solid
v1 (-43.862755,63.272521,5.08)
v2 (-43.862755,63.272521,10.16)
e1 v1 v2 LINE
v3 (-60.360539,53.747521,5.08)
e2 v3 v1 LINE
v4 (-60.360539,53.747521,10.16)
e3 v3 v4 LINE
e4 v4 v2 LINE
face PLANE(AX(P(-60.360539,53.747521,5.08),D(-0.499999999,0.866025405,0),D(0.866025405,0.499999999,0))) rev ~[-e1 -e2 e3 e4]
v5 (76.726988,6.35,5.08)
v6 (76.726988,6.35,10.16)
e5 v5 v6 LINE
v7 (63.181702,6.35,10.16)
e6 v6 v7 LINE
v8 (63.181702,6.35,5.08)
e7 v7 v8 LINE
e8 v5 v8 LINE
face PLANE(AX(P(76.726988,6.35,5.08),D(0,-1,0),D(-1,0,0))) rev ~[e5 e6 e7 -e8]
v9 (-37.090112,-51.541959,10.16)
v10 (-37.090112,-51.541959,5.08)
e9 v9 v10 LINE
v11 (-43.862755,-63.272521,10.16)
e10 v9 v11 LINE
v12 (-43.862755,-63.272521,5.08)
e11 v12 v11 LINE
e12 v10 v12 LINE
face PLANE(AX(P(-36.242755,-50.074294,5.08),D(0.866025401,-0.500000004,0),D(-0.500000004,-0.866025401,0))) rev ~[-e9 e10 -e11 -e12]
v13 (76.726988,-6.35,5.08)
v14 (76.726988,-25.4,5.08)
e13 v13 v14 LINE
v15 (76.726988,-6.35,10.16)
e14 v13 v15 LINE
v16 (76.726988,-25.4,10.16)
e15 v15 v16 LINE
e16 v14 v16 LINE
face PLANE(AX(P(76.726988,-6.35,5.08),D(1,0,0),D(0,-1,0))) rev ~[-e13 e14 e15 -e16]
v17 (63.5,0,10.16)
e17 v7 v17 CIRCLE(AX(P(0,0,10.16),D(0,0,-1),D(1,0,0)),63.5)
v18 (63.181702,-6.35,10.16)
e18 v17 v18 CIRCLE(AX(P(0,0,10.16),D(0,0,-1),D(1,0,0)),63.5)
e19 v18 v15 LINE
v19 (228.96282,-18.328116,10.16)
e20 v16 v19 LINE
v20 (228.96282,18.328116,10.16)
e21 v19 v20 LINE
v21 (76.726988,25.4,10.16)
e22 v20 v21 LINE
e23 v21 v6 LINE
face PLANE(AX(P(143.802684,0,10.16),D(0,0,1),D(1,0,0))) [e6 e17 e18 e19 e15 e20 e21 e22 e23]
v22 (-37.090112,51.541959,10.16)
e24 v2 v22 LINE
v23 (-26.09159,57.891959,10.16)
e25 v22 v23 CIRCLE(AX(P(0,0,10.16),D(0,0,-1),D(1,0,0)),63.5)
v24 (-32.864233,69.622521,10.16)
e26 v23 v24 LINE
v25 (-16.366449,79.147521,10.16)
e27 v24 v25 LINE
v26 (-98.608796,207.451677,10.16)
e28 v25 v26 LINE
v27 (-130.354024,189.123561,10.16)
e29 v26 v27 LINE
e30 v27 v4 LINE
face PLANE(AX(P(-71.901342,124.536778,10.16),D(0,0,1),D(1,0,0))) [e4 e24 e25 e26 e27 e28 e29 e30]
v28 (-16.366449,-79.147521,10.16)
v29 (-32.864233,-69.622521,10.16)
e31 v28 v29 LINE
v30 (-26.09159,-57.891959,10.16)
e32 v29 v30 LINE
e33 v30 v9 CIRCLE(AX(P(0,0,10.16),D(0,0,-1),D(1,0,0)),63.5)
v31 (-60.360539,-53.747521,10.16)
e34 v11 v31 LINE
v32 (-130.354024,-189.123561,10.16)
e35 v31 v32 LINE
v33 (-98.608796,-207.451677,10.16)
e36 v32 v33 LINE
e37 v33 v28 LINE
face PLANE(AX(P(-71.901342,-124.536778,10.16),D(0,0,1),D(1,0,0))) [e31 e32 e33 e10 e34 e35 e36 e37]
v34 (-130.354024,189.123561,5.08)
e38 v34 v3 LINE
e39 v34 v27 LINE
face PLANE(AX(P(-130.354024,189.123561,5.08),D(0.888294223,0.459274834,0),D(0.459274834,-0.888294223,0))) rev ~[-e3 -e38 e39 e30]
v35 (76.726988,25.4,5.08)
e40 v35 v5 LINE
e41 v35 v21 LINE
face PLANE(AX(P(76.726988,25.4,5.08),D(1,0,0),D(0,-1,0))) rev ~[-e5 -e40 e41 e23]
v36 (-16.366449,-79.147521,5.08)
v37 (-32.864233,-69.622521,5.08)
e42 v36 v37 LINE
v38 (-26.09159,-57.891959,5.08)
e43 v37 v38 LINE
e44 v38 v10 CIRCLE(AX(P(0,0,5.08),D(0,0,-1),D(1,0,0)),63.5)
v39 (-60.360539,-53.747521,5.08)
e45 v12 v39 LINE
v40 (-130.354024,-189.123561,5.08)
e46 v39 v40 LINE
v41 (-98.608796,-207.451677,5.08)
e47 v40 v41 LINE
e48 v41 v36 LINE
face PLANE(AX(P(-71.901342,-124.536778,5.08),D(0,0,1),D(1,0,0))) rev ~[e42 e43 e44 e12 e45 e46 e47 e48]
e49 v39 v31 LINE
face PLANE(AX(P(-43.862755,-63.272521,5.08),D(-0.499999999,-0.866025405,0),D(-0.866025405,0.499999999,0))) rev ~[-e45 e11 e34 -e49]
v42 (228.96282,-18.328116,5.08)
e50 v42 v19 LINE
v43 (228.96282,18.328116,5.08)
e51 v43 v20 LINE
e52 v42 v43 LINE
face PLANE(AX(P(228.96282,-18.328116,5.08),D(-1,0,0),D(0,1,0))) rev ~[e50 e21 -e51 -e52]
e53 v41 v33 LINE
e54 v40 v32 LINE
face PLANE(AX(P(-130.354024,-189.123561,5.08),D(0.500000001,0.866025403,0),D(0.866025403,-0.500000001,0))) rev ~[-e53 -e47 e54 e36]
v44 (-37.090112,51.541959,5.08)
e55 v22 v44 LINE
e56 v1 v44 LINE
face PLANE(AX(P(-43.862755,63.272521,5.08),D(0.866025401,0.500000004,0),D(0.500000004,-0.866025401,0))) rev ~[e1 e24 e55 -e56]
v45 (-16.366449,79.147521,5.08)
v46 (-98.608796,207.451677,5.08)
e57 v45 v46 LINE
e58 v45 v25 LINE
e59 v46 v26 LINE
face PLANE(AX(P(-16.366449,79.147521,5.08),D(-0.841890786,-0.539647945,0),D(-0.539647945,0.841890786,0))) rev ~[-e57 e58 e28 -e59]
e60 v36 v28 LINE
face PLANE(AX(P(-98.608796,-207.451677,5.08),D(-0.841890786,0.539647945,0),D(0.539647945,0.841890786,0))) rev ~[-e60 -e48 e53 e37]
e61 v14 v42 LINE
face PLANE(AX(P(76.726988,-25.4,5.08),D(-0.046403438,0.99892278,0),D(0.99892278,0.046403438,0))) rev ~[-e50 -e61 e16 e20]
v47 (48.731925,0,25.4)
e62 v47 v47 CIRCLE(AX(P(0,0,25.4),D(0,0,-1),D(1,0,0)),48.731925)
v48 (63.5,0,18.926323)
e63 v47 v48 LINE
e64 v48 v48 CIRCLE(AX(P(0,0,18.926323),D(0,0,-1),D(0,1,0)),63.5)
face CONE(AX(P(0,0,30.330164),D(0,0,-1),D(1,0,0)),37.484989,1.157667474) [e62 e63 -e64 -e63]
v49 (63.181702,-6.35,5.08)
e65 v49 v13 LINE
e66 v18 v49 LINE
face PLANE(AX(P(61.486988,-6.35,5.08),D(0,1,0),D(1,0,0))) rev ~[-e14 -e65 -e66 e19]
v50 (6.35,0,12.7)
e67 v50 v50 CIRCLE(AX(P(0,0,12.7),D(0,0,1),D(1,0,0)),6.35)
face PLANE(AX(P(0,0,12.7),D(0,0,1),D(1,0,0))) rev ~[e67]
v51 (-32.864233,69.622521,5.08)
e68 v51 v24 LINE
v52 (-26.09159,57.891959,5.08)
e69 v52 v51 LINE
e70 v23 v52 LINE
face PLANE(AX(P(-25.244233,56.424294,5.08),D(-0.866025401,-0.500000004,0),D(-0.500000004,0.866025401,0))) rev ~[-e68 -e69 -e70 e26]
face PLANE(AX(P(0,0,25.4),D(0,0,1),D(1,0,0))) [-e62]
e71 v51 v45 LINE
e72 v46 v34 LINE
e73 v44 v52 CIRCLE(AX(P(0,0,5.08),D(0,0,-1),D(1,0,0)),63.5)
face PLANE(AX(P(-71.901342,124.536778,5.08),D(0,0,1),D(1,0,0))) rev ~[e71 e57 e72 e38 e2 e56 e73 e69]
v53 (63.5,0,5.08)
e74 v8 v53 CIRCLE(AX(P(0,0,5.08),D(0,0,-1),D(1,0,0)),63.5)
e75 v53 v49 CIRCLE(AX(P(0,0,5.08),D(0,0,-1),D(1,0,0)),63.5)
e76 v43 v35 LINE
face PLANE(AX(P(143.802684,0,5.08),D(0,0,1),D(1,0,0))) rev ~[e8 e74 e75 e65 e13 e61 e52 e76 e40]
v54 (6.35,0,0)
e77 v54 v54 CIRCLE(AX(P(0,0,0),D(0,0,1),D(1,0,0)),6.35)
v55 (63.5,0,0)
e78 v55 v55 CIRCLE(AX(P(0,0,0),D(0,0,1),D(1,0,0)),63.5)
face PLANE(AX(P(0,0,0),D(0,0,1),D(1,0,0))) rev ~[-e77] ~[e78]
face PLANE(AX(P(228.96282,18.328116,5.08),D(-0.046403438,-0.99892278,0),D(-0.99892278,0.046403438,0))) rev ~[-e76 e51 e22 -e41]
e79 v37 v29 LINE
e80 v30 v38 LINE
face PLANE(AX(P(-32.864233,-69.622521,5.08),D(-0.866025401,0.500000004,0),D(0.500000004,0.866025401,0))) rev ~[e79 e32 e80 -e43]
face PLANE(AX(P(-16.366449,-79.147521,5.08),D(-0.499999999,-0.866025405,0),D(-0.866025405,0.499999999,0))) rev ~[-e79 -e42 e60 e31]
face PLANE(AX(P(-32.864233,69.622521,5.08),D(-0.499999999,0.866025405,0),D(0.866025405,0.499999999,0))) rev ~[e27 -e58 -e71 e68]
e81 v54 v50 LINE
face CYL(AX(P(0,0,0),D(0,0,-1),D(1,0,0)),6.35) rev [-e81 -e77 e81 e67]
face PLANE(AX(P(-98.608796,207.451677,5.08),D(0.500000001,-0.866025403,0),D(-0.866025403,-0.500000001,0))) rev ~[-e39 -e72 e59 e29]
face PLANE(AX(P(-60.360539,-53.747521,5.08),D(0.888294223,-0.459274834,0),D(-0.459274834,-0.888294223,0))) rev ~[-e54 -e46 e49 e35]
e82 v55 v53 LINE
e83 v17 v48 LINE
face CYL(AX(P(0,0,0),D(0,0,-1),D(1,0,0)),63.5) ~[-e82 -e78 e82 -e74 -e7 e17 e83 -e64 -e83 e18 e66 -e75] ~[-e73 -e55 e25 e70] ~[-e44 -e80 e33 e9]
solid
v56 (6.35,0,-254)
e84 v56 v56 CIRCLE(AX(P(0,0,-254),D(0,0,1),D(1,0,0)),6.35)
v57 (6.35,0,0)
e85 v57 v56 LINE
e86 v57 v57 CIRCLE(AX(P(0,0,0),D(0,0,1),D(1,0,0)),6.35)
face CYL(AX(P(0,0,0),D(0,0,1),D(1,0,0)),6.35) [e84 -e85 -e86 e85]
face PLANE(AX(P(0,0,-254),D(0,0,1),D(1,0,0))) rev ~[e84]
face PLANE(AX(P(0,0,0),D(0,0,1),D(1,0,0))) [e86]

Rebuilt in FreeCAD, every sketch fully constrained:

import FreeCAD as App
import Part
import Sketcher
Q = App.Units.Quantity


def add_polygon(sketch, points):
    """Adds a closed chain of lines whose ends are joined by coincident constraints."""
    first, n = sketch.GeometryCount, len(points)
    for a, b in zip(points, points[1:] + points[:1]):
        sketch.addGeometry(Part.LineSegment(App.Vector(*a, 0), App.Vector(*b, 0)), False)
    for i in range(n):
        sketch.addConstraint(Sketcher.Constraint("Coincident", first + i, 2, first + (i + 1) % n, 1))

doc = App.newDocument("Part")
params = doc.addObject("Spreadsheet::Sheet", "Params")
for row, (alias, value) in enumerate([
    ("sketch1_diameter", "5 in"),
    ("pad1_length", "1 in"),
    ("groove_angle", "360 deg"),
    ("sketch3_length", "6 in"),
    ("sketch3_width", "0.6 in"),
    ("sketch3_height", "0.5 in"),
    ("sketch3_length2", "0.6 in"),
    ("sketch3_length3", "0.5 in"),
    ("pad2_length", "0.2 in"),
    ("sketch4_diameter", "0.5 in"),
    ("pocket1_length", "0.5 in"),
    ("sketch5_diameter", "0.5 in"),
    ("pad3_length", "10 in"),
], start=1):
    params.set(f"A{row}", alias)
    params.set(f"B{row}", "=" + value)
    params.setAlias(f"B{row}", alias)

body = doc.addObject("PartDesign::Body", "Body")

sketch1 = doc.addObject("Sketcher::SketchObject", "Sketch")
body.addObject(sketch1)
sketch1.AttachmentSupport = (doc.XY_Plane, [""])
sketch1.MapMode = "FlatFace"
sketch1.addGeometry(Part.Circle(App.Vector(0, 0, 0), App.Vector(0, 0, 1), 64), False)
sketch1.addConstraint([
    Sketcher.Constraint("Coincident", 0, 3, -1, 1),
    Sketcher.Constraint("Diameter", 0, Q("5 in")),
])
sketch1.setExpression("Constraints[1]", "Params.sketch1_diameter")
pad1 = doc.addObject("PartDesign::Pad", "Pad")
body.addObject(pad1)
pad1.Profile = sketch1
pad1.setExpression("Length", "Params.pad1_length")

sketch2 = doc.addObject("Sketcher::SketchObject", "Sketch001")
body.addObject(sketch2)
sketch2.AttachmentSupport = (doc.XZ_Plane, [""])
sketch2.MapMode = "FlatFace"
add_polygon(sketch2, [(69, 45), (37, 30), (69, 16)])
sketch2.addConstraint([
    Sketcher.Constraint("Vertical", 2),
    Sketcher.Constraint("Distance", 0, 34.897659),
    Sketcher.Constraint("Distance", 1, 34.540669),
    Sketcher.Constraint("DistanceY", 2, 1, 2, 2, 28.601265),
    Sketcher.Constraint("DistanceX", -1, 1, 0, 2, 37.484989),
    Sketcher.Constraint("DistanceY", -1, 1, 2, 2, 45.064148),
])
groove = doc.addObject("PartDesign::Groove", "Groove")
body.addObject(groove)
groove.Profile = sketch2
groove.ReferenceAxis = (sketch2, ["V_Axis"])
groove.setExpression("Angle", "Params.groove_angle")

sketch3 = doc.addObject("Sketcher::SketchObject", "Sketch002")
body.addObject(sketch3)
sketch3.AttachmentSupport = (doc.XY_Plane, [""])
sketch3.MapMode = "FlatFace"
sketch3.AttachmentOffset = App.Placement(App.Vector(0, 0, 0.2 * 25.4), App.Rotation())
add_polygon(sketch3, [(77, 6), (61, 6), (61, -6), (77, -6), (77, -25), (229, -18), (229, 18), (77, 25)])
add_polygon(sketch3, [(-44, 63), (-36, 50), (-25, 56), (-33, 70), (-16, 79), (-99, 207), (-130, 189), (-60, 54)])
add_polygon(sketch3, [(-33, -70), (-25, -56), (-36, -50), (-44, -63), (-60, -54), (-130, -189), (-99, -207), (-16, -79)])
sketch3.addConstraint([
    Sketcher.Constraint("Horizontal", 0),
    Sketcher.Constraint("Vertical", 1),
    Sketcher.Constraint("Horizontal", 2),
    Sketcher.Constraint("Vertical", 3),
    Sketcher.Constraint("Vertical", 5),
    Sketcher.Constraint("Vertical", 7),
    Sketcher.Constraint("Symmetric", 3, 2, 6, 2, -1),
    Sketcher.Constraint("Symmetric", 9, 2, 16, 2, -1),
    Sketcher.Constraint("Symmetric", 8, 2, 17, 2, -1),
    Sketcher.Constraint("Symmetric", 15, 2, 18, 2, -1),
    Sketcher.Constraint("Symmetric", 14, 2, 19, 2, -1),
    Sketcher.Constraint("Symmetric", 13, 2, 20, 2, -1),
    Sketcher.Constraint("Symmetric", 12, 2, 21, 2, -1),
    Sketcher.Constraint("Symmetric", 11, 2, 22, 2, -1),
    Sketcher.Constraint("Symmetric", 10, 2, 23, 2, -1),
    Sketcher.Constraint("Perpendicular", 8, 9),
    Sketcher.Constraint("Perpendicular", 9, 10),
    Sketcher.Constraint("Perpendicular", 10, 11),
    Sketcher.Constraint("Parallel", 11, 13),
    Sketcher.Constraint("Parallel", 13, 15),
    Sketcher.Constraint("Equal", 3, 7),
    Sketcher.Constraint("Equal", 4, 6),
    Sketcher.Constraint("Equal", 8, 10),
    Sketcher.Constraint("Equal", 6, 12),
    Sketcher.Constraint("Equal", 12, 14),
    Sketcher.Constraint("Equal", 11, 15),
    Sketcher.Constraint("Distance", 4, Q("6 in")),
    Sketcher.Constraint("DistanceX", 0, 2, 0, 1, Q("0.6 in")),
    Sketcher.Constraint("DistanceY", 1, 2, 1, 1, Q("0.5 in")),
    Sketcher.Constraint("DistanceY", 3, 2, -1, 1, Q("1 in")),
    Sketcher.Constraint("Angle", 8, Q("-60 deg")),
    Sketcher.Constraint("DistanceY", 14, 2, 11, 2, Q("1 in")),
    Sketcher.Constraint("Distance", 8, Q("0.6 in")),
    Sketcher.Constraint("Distance", 9, Q("0.5 in")),
    Sketcher.Constraint("DistanceX", 13, 2, 11, 2, Q("4.4876998 in")),
    Sketcher.Constraint("DistanceY", 5, 1, 5, 2, 36.656232),
    Sketcher.Constraint("DistanceX", -1, 1, 2, 2, 76.726988),
    Sketcher.Constraint("DistanceY", -1, 1, 10, 2, 69.622521),
    Sketcher.Constraint("DistanceX", 11, 2, -1, 1, 16.366449),
])
sketch3.setExpression("Constraints[50]", "Params.sketch3_length")
sketch3.setExpression("Constraints[51]", "Params.sketch3_width")
sketch3.setExpression("Constraints[52]", "Params.sketch3_height")
sketch3.setExpression("Constraints[56]", "Params.sketch3_length2")
sketch3.setExpression("Constraints[57]", "Params.sketch3_length3")
pad2 = doc.addObject("PartDesign::Pad", "Pad001")
body.addObject(pad2)
pad2.Profile = sketch3
pad2.setExpression("Length", "Params.pad2_length")

sketch4 = doc.addObject("Sketcher::SketchObject", "Sketch003")
body.addObject(sketch4)
sketch4.AttachmentSupport = (doc.XY_Plane, [""])
sketch4.MapMode = "FlatFace"
sketch4.addGeometry(Part.Circle(App.Vector(0, 0, 0), App.Vector(0, 0, 1), 6), False)
sketch4.addConstraint([
    Sketcher.Constraint("Coincident", 0, 3, -1, 1),
    Sketcher.Constraint("Diameter", 0, Q("0.5 in")),
])
sketch4.setExpression("Constraints[1]", "Params.sketch4_diameter")
pocket1 = doc.addObject("PartDesign::Pocket", "Pocket")
body.addObject(pocket1)
pocket1.Profile = sketch4
pocket1.setExpression("Length", "Params.pocket1_length")
pocket1.Reversed = True
body2 = doc.addObject("PartDesign::Body", "Body001")

sketch5 = doc.addObject("Sketcher::SketchObject", "Sketch004")
body2.addObject(sketch5)
sketch5.AttachmentSupport = (doc.getObject("XY_Plane001"), [""])
sketch5.MapMode = "FlatFace"
sketch5.addGeometry(Part.Circle(App.Vector(0, 0, 0), App.Vector(0, 0, 1), 6), False)
sketch5.addConstraint([
    Sketcher.Constraint("Coincident", 0, 3, -1, 1),
    Sketcher.Constraint("Diameter", 0, Q("0.5 in")),
])
sketch5.setExpression("Constraints[1]", "Params.sketch5_diameter")
pad3 = doc.addObject("PartDesign::Pad", "Pad002")
body2.addObject(pad3)
pad3.Profile = sketch5
pad3.setExpression("Length", "Params.pad3_length")
pad3.Reversed = True

doc.recompute()
